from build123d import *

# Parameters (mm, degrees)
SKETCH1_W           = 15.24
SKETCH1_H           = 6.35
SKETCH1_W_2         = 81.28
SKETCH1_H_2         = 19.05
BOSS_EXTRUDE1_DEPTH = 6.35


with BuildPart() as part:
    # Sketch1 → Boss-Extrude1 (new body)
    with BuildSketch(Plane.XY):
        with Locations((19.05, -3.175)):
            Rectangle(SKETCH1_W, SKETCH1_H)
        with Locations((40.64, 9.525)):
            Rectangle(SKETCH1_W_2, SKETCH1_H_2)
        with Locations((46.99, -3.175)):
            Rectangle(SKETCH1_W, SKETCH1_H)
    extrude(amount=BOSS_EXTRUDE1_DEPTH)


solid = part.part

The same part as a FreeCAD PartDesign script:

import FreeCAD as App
import Part
import Sketcher
Q = App.Units.Quantity

doc = App.newDocument("Part")
body = doc.addObject("PartDesign::Body", "Body")

# Sketch on XY plane
sketch1 = body.newObject("Sketcher::SketchObject", "Sketch")
sketch1.AttachmentSupport = (doc.getObject("XY_Plane"), [""])
sketch1.MapMode = "FlatFace"
sketch1.addGeometry([
    Part.LineSegment(App.Vector(11, 0, 0), App.Vector(11, -6, 0)),  # 0
    Part.LineSegment(App.Vector(11, -6, 0), App.Vector(27, -6, 0)),  # 1
    Part.LineSegment(App.Vector(27, -6, 0), App.Vector(27, 0, 0)),  # 2
    Part.LineSegment(App.Vector(27, 0, 0), App.Vector(39, 0, 0)),  # 3
    Part.LineSegment(App.Vector(39, 0, 0), App.Vector(39, -6, 0)),  # 4
    Part.LineSegment(App.Vector(39, -6, 0), App.Vector(55, -6, 0)),  # 5
    Part.LineSegment(App.Vector(55, -6, 0), App.Vector(55, 0, 0)),  # 6
    Part.LineSegment(App.Vector(55, 0, 0), App.Vector(81, 0, 0)),  # 7
    Part.LineSegment(App.Vector(81, 0, 0), App.Vector(81, 19, 0)),  # 8
    Part.LineSegment(App.Vector(81, 19, 0), App.Vector(0, 19, 0)),  # 9
    Part.LineSegment(App.Vector(0, 19, 0), App.Vector(0, 0, 0)),  # 10
    Part.LineSegment(App.Vector(0, 0, 0), App.Vector(11, 0, 0)),  # 11
], False)
sketch1.addConstraint([
    Sketcher.Constraint("Coincident", 0, 2, 1, 1),
    Sketcher.Constraint("Coincident", 1, 2, 2, 1),
    Sketcher.Constraint("Coincident", 2, 2, 3, 1),
    Sketcher.Constraint("Coincident", 3, 2, 4, 1),
    Sketcher.Constraint("Coincident", 4, 2, 5, 1),
    Sketcher.Constraint("Coincident", 5, 2, 6, 1),
    Sketcher.Constraint("Coincident", 6, 2, 7, 1),
    Sketcher.Constraint("Coincident", 7, 2, 8, 1),
    Sketcher.Constraint("Coincident", 8, 2, 9, 1),
    Sketcher.Constraint("Coincident", 9, 2, 10, 1),
    Sketcher.Constraint("Coincident", 10, 2, 11, 1),
    Sketcher.Constraint("Coincident", 11, 2, 0, 1),
    Sketcher.Constraint("Vertical", 0),
    Sketcher.Constraint("Horizontal", 1),
    Sketcher.Constraint("Vertical", 2),
    Sketcher.Constraint("Horizontal", 3),
    Sketcher.Constraint("Vertical", 4),
    Sketcher.Constraint("Horizontal", 5),
    Sketcher.Constraint("Vertical", 6),
    Sketcher.Constraint("Horizontal", 7),
    Sketcher.Constraint("Vertical", 8),
    Sketcher.Constraint("Horizontal", 9),
    Sketcher.Constraint("Vertical", 10),
    Sketcher.Constraint("Horizontal", 11),
    Sketcher.Constraint("Coincident", 10, 2, -1, 1),
    Sketcher.Constraint("PointOnObject", 2, 2, -1),
    Sketcher.Constraint("PointOnObject", 6, 2, -1),
    Sketcher.Constraint("Horizontal", 1, 2, 4, 2),
    Sketcher.Constraint("Equal", 1, 5),
    Sketcher.Constraint("DistanceX", 1, 1, 1, 2, Q("0.6 in")),
    Sketcher.Constraint("DistanceX", 3, 1, 3, 2, Q("0.5 in")),
    Sketcher.Constraint("DistanceX", 9, 2, 9, 1, Q("3.2 in")),
    Sketcher.Constraint("DistanceY", 5, 2, 8, 2, Q("1 in")),
    Sketcher.Constraint("DistanceX", 7, 1, 7, 2, Q("1.05 in")),
    Sketcher.Constraint("DistanceY", 0, 2, 0, 1, Q("0.25 in")),
])
pad1 = body.newObject("PartDesign::Pad", "Pad")
pad1.Profile = sketch1
pad1.Length = Q("0.25 in")

doc.recompute()
